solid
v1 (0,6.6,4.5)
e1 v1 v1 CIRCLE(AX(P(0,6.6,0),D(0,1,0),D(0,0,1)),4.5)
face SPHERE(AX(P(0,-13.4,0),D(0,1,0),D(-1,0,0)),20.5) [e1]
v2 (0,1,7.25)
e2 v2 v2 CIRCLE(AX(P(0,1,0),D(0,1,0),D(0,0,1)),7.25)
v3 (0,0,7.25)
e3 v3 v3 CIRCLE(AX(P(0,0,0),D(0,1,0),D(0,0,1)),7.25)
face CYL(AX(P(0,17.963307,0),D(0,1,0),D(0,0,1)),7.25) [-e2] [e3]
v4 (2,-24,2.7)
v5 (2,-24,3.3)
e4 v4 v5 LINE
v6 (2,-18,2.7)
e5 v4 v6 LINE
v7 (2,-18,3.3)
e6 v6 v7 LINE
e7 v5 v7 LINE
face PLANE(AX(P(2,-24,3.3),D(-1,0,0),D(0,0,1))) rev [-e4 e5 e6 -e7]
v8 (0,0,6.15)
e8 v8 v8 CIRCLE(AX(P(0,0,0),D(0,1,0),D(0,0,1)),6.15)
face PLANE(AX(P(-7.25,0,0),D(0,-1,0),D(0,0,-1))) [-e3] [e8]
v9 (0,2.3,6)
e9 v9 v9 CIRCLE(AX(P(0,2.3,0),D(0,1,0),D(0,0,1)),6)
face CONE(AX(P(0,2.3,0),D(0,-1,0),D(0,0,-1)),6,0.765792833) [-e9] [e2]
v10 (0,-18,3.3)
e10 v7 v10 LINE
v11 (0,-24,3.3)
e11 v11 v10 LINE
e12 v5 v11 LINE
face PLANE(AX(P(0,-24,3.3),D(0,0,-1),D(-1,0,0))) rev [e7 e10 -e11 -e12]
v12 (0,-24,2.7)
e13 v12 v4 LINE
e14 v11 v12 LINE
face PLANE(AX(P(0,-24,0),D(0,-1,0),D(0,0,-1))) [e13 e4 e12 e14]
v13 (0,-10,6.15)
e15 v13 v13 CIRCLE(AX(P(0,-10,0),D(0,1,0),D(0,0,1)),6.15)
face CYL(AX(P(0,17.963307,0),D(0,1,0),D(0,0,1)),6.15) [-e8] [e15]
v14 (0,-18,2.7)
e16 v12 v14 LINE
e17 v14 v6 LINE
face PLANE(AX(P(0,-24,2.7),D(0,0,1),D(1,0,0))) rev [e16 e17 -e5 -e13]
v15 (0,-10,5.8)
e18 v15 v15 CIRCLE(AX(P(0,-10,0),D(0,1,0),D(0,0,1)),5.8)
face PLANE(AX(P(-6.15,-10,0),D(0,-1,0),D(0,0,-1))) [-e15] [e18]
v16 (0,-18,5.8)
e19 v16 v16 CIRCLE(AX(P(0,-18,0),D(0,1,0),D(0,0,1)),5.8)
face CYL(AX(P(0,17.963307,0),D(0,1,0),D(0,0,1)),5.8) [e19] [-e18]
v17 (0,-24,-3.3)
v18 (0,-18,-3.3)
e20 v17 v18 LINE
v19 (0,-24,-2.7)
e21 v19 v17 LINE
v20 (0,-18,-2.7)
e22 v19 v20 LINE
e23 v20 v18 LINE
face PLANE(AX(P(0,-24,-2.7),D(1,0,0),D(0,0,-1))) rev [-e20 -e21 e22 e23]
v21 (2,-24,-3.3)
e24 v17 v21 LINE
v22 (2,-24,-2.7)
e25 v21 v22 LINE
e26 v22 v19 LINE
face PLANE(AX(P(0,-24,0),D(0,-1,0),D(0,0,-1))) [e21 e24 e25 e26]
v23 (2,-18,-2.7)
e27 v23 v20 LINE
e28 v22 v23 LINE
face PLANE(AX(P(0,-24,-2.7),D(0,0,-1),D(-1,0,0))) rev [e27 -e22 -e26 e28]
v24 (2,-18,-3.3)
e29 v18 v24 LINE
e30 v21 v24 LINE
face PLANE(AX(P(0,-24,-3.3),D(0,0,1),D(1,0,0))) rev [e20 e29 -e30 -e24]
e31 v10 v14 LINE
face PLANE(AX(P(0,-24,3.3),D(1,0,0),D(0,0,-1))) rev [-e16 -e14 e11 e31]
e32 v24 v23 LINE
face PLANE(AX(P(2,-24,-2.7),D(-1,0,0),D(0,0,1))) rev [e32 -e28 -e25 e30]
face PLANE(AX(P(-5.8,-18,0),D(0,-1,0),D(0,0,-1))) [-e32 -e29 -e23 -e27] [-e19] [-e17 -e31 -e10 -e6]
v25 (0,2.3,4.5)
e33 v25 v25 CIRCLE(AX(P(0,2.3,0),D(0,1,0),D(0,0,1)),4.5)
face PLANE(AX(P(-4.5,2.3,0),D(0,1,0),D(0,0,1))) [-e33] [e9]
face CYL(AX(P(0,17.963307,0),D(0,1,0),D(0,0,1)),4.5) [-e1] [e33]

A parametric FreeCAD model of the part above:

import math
import FreeCAD as App
import Part
import Sketcher
from FreeCAD import Vector

doc = App.newDocument("Part")
body = doc.addObject("PartDesign::Body", "Body")

# Sketch on XY plane
sketch1 = body.newObject("Sketcher::SketchObject", "Sketch")
sketch1.AttachmentSupport = (doc.getObject("XY_Plane"), [""])
sketch1.MapMode = "FlatFace"
sketch1.addGeometry([
    Part.LineSegment(Vector(-4.5, 6.6, 0), Vector(-4.5, 2.3, 0)),  # 0
    Part.LineSegment(Vector(-4.5, 2.3, 0), Vector(-6, 2.3, 0)),  # 1
    Part.LineSegment(Vector(-6, 2.3, 0), Vector(-7.25, 1, 0)),  # 2
    Part.LineSegment(Vector(-7.25, 1, 0), Vector(-7.25, 0, 0)),  # 3
    Part.LineSegment(Vector(-7.25, 0, 0), Vector(-6.15, 0, 0)),  # 4
    Part.LineSegment(Vector(-6.15, 0, 0), Vector(-6.15, -10, 0)),  # 5
    Part.LineSegment(Vector(-6.15, -10, 0), Vector(-5.8, -10, 0)),  # 6
    Part.LineSegment(Vector(-5.8, -10, 0), Vector(-5.8, -18, 0)),  # 7
    Part.LineSegment(Vector(-5.8, -18, 0), Vector(0, -18, 0)),  # 8
    Part.LineSegment(Vector(0, -18, 0), Vector(0, 7.1, 0)),  # 9
    Part.ArcOfCircle(Part.Circle(Vector(0, -13.4, 0), Vector(0, 0, 1), 20.5), math.radians(90), math.radians(102.68)),  # 10
], False)
sketch1.addConstraint([
    Sketcher.Constraint("Coincident", 0, 2, 1, 1),
    Sketcher.Constraint("Coincident", 1, 2, 2, 1),
    Sketcher.Constraint("Coincident", 2, 2, 3, 1),
    Sketcher.Constraint("Coincident", 3, 2, 4, 1),
    Sketcher.Constraint("Coincident", 4, 2, 5, 1),
    Sketcher.Constraint("Coincident", 5, 2, 6, 1),
    Sketcher.Constraint("Coincident", 6, 2, 7, 1),
    Sketcher.Constraint("Coincident", 7, 2, 8, 1),
    Sketcher.Constraint("Coincident", 8, 2, 9, 1),
    Sketcher.Constraint("Coincident", 9, 2, 10, 1),
    Sketcher.Constraint("Coincident", 10, 2, 0, 1),
    Sketcher.Constraint("Vertical", 0),
    Sketcher.Constraint("Horizontal", 1),
    Sketcher.Constraint("Vertical", 3),
    Sketcher.Constraint("Horizontal", 4),
    Sketcher.Constraint("Vertical", 5),
    Sketcher.Constraint("Horizontal", 6),
    Sketcher.Constraint("Vertical", 7),
    Sketcher.Constraint("Horizontal", 8),
    Sketcher.Constraint("Vertical", 9),
    Sketcher.Constraint("PointOnObject", 10, 3, -2),
    Sketcher.Constraint("PointOnObject", 3, 2, -1),
    Sketcher.Constraint("PointOnObject", 8, 2, -2),
    Sketcher.Constraint("Radius", 10, 20.5),
    Sketcher.Constraint("DistanceY", 3, 2, 3, 1, 1.0),
    Sketcher.Constraint("DistanceY", 5, 2, 5, 1, 10.0),
    Sketcher.Constraint("DistanceY", 7, 2, 7, 1, 8.0),
    Sketcher.Constraint("DistanceX", 1, 2, 1, 1, 1.5),
    Sketcher.Constraint("DistanceX", 4, 1, 4, 2, 1.1),
    Sketcher.Constraint("DistanceX", 8, 1, 8, 2, 5.8),
    Sketcher.Constraint("DistanceY", 0, 2, 0, 1, 4.3),
    Sketcher.Constraint("DistanceY", 9, 1, 9, 2, 25.1),
    Sketcher.Constraint("DistanceX", 1, 2, -1, 1, 6.0),
    Sketcher.Constraint("DistanceX", 6, 1, 6, 2, 0.35),
])
revolution = body.newObject("PartDesign::Revolution", "Revolution")
revolution.Profile = sketch1
revolution.ReferenceAxis = (sketch1, ["V_Axis"])
revolution.Angle = 360

# Sketch on XZ plane
sketch2 = body.newObject("Sketcher::SketchObject", "Sketch001")
sketch2.AttachmentSupport = (doc.getObject("XZ_Plane"), [""])
sketch2.MapMode = "FlatFace"
sketch2.AttachmentOffset = App.Placement(Vector(0, 0, 18), App.Rotation())
sketch2.addGeometry([
    Part.LineSegment(Vector(0, 3.3, 0), Vector(0, 2.7, 0)),  # 0
    Part.LineSegment(Vector(0, 2.7, 0), Vector(2, 2.7, 0)),  # 1
    Part.LineSegment(Vector(2, 2.7, 0), Vector(2, 3.3, 0)),  # 2
    Part.LineSegment(Vector(2, 3.3, 0), Vector(0, 3.3, 0)),  # 3
    Part.LineSegment(Vector(0, -2.7, 0), Vector(0, -3.3, 0)),  # 4
    Part.LineSegment(Vector(0, -3.3, 0), Vector(2, -3.3, 0)),  # 5
    Part.LineSegment(Vector(2, -3.3, 0), Vector(2, -2.7, 0)),  # 6
    Part.LineSegment(Vector(2, -2.7, 0), Vector(0, -2.7, 0)),  # 7
], False)
sketch2.addConstraint([
    Sketcher.Constraint("Coincident", 0, 2, 1, 1),
    Sketcher.Constraint("Coincident", 1, 2, 2, 1),
    Sketcher.Constraint("Coincident", 2, 2, 3, 1),
    Sketcher.Constraint("Coincident", 3, 2, 0, 1),
    Sketcher.Constraint("Coincident", 4, 2, 5, 1),
    Sketcher.Constraint("Coincident", 5, 2, 6, 1),
    Sketcher.Constraint("Coincident", 6, 2, 7, 1),
    Sketcher.Constraint("Coincident", 7, 2, 4, 1),
    Sketcher.Constraint("Vertical", 0),
    Sketcher.Constraint("Horizontal", 1),
    Sketcher.Constraint("Vertical", 2),
    Sketcher.Constraint("Horizontal", 3),
    Sketcher.Constraint("Vertical", 4),
    Sketcher.Constraint("Horizontal", 5),
    Sketcher.Constraint("Vertical", 6),
    Sketcher.Constraint("Horizontal", 7),
    Sketcher.Constraint("Symmetric", 3, 2, 4, 2, -1, 1),
    Sketcher.Constraint("Symmetric", 1, 2, 6, 2, -1),
    Sketcher.Constraint("PointOnObject", 0, 2, -2),
    Sketcher.Constraint("DistanceX", 1, 1, 1, 2, 2.0),
    Sketcher.Constraint("DistanceY", 0, 2, 0, 1, 0.6),
    Sketcher.Constraint("DistanceY", 4, 2, 0, 2, 6.0),
])
pad1 = body.newObject("PartDesign::Pad", "Pad")
pad1.Profile = sketch2
pad1.Length = 6

doc.recompute()
